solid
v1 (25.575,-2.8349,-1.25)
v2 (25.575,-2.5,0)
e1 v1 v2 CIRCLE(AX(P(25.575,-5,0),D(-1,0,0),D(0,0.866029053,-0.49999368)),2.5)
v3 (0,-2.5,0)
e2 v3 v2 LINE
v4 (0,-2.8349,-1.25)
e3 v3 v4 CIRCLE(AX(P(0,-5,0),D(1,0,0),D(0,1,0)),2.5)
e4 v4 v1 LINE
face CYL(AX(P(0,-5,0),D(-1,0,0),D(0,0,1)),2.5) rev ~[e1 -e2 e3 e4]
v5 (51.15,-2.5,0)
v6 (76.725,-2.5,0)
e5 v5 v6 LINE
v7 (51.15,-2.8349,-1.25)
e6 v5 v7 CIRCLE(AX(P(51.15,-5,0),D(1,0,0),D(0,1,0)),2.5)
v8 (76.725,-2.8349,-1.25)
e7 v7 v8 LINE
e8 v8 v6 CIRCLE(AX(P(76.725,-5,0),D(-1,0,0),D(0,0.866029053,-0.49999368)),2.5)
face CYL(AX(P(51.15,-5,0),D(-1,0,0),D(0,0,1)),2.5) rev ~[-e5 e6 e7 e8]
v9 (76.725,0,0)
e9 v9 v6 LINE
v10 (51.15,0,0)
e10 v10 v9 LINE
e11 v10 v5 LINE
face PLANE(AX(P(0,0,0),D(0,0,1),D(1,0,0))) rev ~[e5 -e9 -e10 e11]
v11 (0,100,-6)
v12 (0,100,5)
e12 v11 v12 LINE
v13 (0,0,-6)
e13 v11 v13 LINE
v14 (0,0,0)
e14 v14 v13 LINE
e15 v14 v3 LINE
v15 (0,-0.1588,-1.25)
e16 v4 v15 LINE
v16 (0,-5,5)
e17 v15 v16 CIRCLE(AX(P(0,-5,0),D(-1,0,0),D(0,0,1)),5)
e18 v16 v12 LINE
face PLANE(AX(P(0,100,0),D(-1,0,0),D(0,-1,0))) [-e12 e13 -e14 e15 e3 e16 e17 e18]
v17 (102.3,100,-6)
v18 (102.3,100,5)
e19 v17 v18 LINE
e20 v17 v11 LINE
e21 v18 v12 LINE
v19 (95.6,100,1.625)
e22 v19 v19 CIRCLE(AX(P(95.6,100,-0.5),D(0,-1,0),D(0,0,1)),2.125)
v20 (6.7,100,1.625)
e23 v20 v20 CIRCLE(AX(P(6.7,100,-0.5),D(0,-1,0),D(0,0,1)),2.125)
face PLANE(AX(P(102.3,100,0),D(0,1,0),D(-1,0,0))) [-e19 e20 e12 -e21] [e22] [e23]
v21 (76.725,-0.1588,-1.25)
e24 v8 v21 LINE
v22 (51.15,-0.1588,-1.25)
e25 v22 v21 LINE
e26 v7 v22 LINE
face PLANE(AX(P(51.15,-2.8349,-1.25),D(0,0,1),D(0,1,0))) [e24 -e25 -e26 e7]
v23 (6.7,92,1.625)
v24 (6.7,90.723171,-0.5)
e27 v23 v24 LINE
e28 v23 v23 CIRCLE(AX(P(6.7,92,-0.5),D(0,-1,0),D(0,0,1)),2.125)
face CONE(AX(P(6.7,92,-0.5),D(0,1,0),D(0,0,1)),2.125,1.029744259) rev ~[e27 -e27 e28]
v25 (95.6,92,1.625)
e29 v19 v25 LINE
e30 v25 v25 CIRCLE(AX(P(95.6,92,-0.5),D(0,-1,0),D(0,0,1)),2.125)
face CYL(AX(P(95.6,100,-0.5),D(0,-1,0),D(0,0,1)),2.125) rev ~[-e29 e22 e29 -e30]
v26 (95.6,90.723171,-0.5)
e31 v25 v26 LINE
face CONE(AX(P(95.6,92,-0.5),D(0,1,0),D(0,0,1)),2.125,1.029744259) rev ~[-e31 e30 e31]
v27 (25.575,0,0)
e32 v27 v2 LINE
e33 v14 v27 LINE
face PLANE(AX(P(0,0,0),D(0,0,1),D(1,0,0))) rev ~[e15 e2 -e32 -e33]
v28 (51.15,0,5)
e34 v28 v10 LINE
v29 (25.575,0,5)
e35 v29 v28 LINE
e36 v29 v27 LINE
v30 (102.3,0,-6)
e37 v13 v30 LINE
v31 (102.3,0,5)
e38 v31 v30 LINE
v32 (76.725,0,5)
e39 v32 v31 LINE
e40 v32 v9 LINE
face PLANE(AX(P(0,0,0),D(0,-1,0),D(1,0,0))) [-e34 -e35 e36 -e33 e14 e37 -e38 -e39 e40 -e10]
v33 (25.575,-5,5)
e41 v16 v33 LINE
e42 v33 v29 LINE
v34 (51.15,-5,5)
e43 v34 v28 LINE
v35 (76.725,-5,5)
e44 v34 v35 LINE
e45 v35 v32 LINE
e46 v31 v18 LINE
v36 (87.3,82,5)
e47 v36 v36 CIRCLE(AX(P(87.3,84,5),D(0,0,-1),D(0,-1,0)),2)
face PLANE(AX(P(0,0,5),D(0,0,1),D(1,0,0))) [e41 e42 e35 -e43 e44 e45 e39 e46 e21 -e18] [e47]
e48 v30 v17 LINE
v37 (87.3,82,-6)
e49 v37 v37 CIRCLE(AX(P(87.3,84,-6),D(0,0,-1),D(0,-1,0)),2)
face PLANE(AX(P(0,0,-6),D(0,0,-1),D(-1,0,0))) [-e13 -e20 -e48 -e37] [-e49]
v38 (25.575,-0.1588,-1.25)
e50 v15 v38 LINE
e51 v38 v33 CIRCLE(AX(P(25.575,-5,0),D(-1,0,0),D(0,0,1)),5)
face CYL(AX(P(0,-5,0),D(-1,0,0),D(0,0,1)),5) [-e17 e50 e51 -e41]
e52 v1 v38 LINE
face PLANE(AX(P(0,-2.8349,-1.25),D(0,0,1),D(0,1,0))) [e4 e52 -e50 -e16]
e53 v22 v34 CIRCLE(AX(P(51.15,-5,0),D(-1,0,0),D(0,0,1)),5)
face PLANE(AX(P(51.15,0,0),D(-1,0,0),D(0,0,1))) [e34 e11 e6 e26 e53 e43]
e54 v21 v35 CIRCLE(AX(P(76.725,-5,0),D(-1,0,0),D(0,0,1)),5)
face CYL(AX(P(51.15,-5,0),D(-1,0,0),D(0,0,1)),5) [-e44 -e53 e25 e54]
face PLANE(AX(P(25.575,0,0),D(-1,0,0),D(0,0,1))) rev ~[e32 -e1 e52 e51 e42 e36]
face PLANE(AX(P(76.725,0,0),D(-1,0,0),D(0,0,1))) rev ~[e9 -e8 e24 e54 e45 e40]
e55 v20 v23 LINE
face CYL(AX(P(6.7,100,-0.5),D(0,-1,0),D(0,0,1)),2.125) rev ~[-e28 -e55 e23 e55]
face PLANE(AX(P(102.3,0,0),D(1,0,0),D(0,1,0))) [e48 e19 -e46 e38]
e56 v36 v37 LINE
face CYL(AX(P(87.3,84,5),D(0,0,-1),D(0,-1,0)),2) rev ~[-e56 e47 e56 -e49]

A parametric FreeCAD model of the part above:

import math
import FreeCAD as App
import Part
import Sketcher

V = App.Vector
Q = App.Units.Quantity

doc = App.newDocument("Part")
body = doc.addObject("PartDesign::Body", "Body")

# Sketch on XY plane
sketch1 = body.newObject("Sketcher::SketchObject", "Sketch")
sketch1.AttachmentSupport = (doc.getObject("XY_Plane"), [""])
sketch1.MapMode = "FlatFace"
sketch1.addGeometry(Part.LineSegment(V(0, 100, 0), V(0, 0, 0)), False)
sketch1.addGeometry(Part.LineSegment(V(0, 0, 0), V(102, 0, 0)), False)
sketch1.addGeometry(Part.LineSegment(V(102, 0, 0), V(102, 100, 0)), False)
sketch1.addGeometry(Part.LineSegment(V(102, 100, 0), V(0, 100, 0)), False)
sketch1.addConstraint(Sketcher.Constraint("Coincident", 0, 2, 1, 1))
sketch1.addConstraint(Sketcher.Constraint("Coincident", 1, 2, 2, 1))
sketch1.addConstraint(Sketcher.Constraint("Coincident", 2, 2, 3, 1))
sketch1.addConstraint(Sketcher.Constraint("Coincident", 3, 2, 0, 1))
sketch1.addConstraint(Sketcher.Constraint("Vertical", 0))
sketch1.addConstraint(Sketcher.Constraint("Horizontal", 1))
sketch1.addConstraint(Sketcher.Constraint("Vertical", 2))
sketch1.addConstraint(Sketcher.Constraint("Horizontal", 3))
sketch1.addConstraint(Sketcher.Constraint("Coincident", 0, 2, -1, 1))
sketch1.addConstraint(Sketcher.Constraint("DistanceY", 0, 2, 0, 1, Q("100 mm")))
sketch1.addConstraint(Sketcher.Constraint("DistanceX", 1, 1, 1, 2, Q("102.3 mm")))
pad1 = body.newObject("PartDesign::Pad", "Pad")
pad1.Profile = sketch1
pad1.Length = 5

# Sketch on YZ plane
sketch2 = body.newObject("Sketcher::SketchObject", "Sketch001")
sketch2.AttachmentSupport = (doc.getObject("YZ_Plane"), [""])
sketch2.MapMode = "FlatFace"
sketch2.addGeometry(Part.LineSegment(V(-5, 5, 0), V(0, 5, 0)), False)
sketch2.addGeometry(Part.LineSegment(V(0, 5, 0), V(0, 0, 0)), False)
sketch2.addGeometry(Part.LineSegment(V(0, 0, 0), V(-2.5, 0, 0)), False)
sketch2.addGeometry(Part.ArcOfCircle(Part.Circle(V(-5, 0, 0), V(0, 0, 1), 2.5), math.radians(0), math.radians(330)), False)
sketch2.addGeometry(Part.LineSegment(V(-2.8, -1.2, 0), V(-0.2, -1.2, 0)), False)
sketch2.addGeometry(Part.ArcOfCircle(Part.Circle(V(-5, 0, 0), V(0, 0, 1), 5), math.radians(90), math.radians(346)), False)
sketch2.addConstraint(Sketcher.Constraint("Coincident", 0, 2, 1, 1))
sketch2.addConstraint(Sketcher.Constraint("Coincident", 1, 2, 2, 1))
sketch2.addConstraint(Sketcher.Constraint("Coincident", 2, 2, 3, 1))
sketch2.addConstraint(Sketcher.Constraint("Coincident", 3, 2, 4, 1))
sketch2.addConstraint(Sketcher.Constraint("Coincident", 4, 2, 5, 2))
sketch2.addConstraint(Sketcher.Constraint("Tangent", 5, 1, 0, 1))
sketch2.addConstraint(Sketcher.Constraint("Horizontal", 0))
sketch2.addConstraint(Sketcher.Constraint("Vertical", 1))
sketch2.addConstraint(Sketcher.Constraint("Horizontal", 2))
sketch2.addConstraint(Sketcher.Constraint("Horizontal", 4))
sketch2.addConstraint(Sketcher.Constraint("Coincident", 1, 2, -1, 1))
sketch2.addConstraint(Sketcher.Constraint("Coincident", 5, 3, 3, 3))
sketch2.addConstraint(Sketcher.Constraint("PointOnObject", 3, 3, -1))
sketch2.addConstraint(Sketcher.Constraint("Equal", 0, 1))
sketch2.addConstraint(Sketcher.Constraint("Radius", 5, Q("5 mm")))
sketch2.addConstraint(Sketcher.Constraint("Radius", 3, Q("2.5 mm")))
sketch2.addConstraint(Sketcher.Constraint("DistanceY", 3, 2, -1, 1, Q("1.25 mm")))
pad2 = body.newObject("PartDesign::Pad", "Pad001")
pad2.Profile = sketch2
pad2.Length = 25.575
doc.recompute()

linearpattern = body.newObject("PartDesign::LinearPattern", "LinearPattern")
linearpattern.Originals = [pad2]
linearpattern.Direction = (doc.getObject("X_Axis"), [""])
linearpattern.Mode = "offset"
linearpattern.Offset = 51.15
linearpattern.Occurrences = 2
body.Tip = linearpattern

# Sketch on XY plane
sketch3 = body.newObject("Sketcher::SketchObject", "Sketch002")
sketch3.AttachmentSupport = (doc.getObject("XY_Plane"), [""])
sketch3.MapMode = "FlatFace"
sketch3.addGeometry(Part.LineSegment(V(102, 100, 0), V(102, 0, 0)), False)
sketch3.addGeometry(Part.LineSegment(V(102, 0, 0), V(0, 0, 0)), False)
sketch3.addGeometry(Part.LineSegment(V(0, 0, 0), V(0, 100, 0)), False)
sketch3.addGeometry(Part.LineSegment(V(0, 100, 0), V(102, 100, 0)), False)
sketch3.addConstraint(Sketcher.Constraint("Coincident", 0, 2, 1, 1))
sketch3.addConstraint(Sketcher.Constraint("Coincident", 1, 2, 2, 1))
sketch3.addConstraint(Sketcher.Constraint("Coincident", 2, 2, 3, 1))
sketch3.addConstraint(Sketcher.Constraint("Coincident", 3, 2, 0, 1))
sketch3.addConstraint(Sketcher.Constraint("Vertical", 0))
sketch3.addConstraint(Sketcher.Constraint("Horizontal", 1))
sketch3.addConstraint(Sketcher.Constraint("Vertical", 2))
sketch3.addConstraint(Sketcher.Constraint("Horizontal", 3))
sketch3.addConstraint(Sketcher.Constraint("Coincident", 1, 2, -1, 1))
sketch3.addConstraint(Sketcher.Constraint("DistanceY", 0, 2, 0, 1, Q("100 mm")))
sketch3.addConstraint(Sketcher.Constraint("DistanceX", 1, 2, 1, 1, Q("102.3 mm")))
pad3 = body.newObject("PartDesign::Pad", "Pad002")
pad3.Profile = sketch3
pad3.Length = 6
pad3.Reversed = True

# Sketch on XY plane
sketch4 = body.newObject("Sketcher::SketchObject", "Sketch003")
sketch4.AttachmentSupport = (doc.getObject("XY_Plane"), [""])
sketch4.MapMode = "FlatFace"
sketch4.AttachmentOffset = App.Placement(V(0, 0, 5), App.Rotation())
sketch4.addGeometry(Part.Circle(V(87.3, 84, 0), V(0, 0, 1), 2), False)
sketch4.addConstraint(Sketcher.Constraint("Diameter", 0, Q("4 mm")))
sketch4.addConstraint(Sketcher.Constraint("DistanceY", -1, 1, 0, 3, Q("84 mm")))
sketch4.addConstraint(Sketcher.Constraint("DistanceX", -1, 1, 0, 3, Q("87.3 mm")))
doc.recompute()
hole = body.newObject("PartDesign::Hole", "Hole")
hole.Profile = sketch4
hole.ThreadType = "None"
hole.Diameter = 4
hole.DepthType = "ThroughAll"

# Sketch on XZ plane
sketch5 = body.newObject("Sketcher::SketchObject", "Sketch004")
sketch5.AttachmentSupport = (doc.getObject("XZ_Plane"), [""])
sketch5.MapMode = "FlatFace"
sketch5.AttachmentOffset = App.Placement(V(0, 0, -100), App.Rotation())
sketch5.addGeometry(Part.Circle(V(6.7, -0.5, 0), V(0, 0, 1), 2.1), False)
sketch5.addGeometry(Part.Circle(V(95.6, -0.5, 0), V(0, 0, 1), 2.1), False)
sketch5.addConstraint(Sketcher.Constraint("Equal", 0, 1))
sketch5.addConstraint(Sketcher.Constraint("Horizontal", 0, 3, 1, 3))
sketch5.addConstraint(Sketcher.Constraint("Diameter", 0, Q("4.25 mm")))
sketch5.addConstraint(Sketcher.Constraint("DistanceX", -1, 1, 0, 3, Q("6.7 mm")))
sketch5.addConstraint(Sketcher.Constraint("DistanceY", 0, 3, -1, 1, Q("0.5 mm")))
sketch5.addConstraint(Sketcher.Constraint("DistanceX", -1, 1, 1, 3, Q("95.6 mm")))
doc.recompute()
hole2 = body.newObject("PartDesign::Hole", "Hole001")
hole2.Profile = sketch5
hole2.ThreadType = "None"
hole2.Diameter = 4.25
hole2.DepthType = "Dimension"
hole2.Depth = 8
hole2.DrillPoint = "Angled"
hole2.DrillPointAngle = 118
hole2.Reversed = True

doc.recompute()
